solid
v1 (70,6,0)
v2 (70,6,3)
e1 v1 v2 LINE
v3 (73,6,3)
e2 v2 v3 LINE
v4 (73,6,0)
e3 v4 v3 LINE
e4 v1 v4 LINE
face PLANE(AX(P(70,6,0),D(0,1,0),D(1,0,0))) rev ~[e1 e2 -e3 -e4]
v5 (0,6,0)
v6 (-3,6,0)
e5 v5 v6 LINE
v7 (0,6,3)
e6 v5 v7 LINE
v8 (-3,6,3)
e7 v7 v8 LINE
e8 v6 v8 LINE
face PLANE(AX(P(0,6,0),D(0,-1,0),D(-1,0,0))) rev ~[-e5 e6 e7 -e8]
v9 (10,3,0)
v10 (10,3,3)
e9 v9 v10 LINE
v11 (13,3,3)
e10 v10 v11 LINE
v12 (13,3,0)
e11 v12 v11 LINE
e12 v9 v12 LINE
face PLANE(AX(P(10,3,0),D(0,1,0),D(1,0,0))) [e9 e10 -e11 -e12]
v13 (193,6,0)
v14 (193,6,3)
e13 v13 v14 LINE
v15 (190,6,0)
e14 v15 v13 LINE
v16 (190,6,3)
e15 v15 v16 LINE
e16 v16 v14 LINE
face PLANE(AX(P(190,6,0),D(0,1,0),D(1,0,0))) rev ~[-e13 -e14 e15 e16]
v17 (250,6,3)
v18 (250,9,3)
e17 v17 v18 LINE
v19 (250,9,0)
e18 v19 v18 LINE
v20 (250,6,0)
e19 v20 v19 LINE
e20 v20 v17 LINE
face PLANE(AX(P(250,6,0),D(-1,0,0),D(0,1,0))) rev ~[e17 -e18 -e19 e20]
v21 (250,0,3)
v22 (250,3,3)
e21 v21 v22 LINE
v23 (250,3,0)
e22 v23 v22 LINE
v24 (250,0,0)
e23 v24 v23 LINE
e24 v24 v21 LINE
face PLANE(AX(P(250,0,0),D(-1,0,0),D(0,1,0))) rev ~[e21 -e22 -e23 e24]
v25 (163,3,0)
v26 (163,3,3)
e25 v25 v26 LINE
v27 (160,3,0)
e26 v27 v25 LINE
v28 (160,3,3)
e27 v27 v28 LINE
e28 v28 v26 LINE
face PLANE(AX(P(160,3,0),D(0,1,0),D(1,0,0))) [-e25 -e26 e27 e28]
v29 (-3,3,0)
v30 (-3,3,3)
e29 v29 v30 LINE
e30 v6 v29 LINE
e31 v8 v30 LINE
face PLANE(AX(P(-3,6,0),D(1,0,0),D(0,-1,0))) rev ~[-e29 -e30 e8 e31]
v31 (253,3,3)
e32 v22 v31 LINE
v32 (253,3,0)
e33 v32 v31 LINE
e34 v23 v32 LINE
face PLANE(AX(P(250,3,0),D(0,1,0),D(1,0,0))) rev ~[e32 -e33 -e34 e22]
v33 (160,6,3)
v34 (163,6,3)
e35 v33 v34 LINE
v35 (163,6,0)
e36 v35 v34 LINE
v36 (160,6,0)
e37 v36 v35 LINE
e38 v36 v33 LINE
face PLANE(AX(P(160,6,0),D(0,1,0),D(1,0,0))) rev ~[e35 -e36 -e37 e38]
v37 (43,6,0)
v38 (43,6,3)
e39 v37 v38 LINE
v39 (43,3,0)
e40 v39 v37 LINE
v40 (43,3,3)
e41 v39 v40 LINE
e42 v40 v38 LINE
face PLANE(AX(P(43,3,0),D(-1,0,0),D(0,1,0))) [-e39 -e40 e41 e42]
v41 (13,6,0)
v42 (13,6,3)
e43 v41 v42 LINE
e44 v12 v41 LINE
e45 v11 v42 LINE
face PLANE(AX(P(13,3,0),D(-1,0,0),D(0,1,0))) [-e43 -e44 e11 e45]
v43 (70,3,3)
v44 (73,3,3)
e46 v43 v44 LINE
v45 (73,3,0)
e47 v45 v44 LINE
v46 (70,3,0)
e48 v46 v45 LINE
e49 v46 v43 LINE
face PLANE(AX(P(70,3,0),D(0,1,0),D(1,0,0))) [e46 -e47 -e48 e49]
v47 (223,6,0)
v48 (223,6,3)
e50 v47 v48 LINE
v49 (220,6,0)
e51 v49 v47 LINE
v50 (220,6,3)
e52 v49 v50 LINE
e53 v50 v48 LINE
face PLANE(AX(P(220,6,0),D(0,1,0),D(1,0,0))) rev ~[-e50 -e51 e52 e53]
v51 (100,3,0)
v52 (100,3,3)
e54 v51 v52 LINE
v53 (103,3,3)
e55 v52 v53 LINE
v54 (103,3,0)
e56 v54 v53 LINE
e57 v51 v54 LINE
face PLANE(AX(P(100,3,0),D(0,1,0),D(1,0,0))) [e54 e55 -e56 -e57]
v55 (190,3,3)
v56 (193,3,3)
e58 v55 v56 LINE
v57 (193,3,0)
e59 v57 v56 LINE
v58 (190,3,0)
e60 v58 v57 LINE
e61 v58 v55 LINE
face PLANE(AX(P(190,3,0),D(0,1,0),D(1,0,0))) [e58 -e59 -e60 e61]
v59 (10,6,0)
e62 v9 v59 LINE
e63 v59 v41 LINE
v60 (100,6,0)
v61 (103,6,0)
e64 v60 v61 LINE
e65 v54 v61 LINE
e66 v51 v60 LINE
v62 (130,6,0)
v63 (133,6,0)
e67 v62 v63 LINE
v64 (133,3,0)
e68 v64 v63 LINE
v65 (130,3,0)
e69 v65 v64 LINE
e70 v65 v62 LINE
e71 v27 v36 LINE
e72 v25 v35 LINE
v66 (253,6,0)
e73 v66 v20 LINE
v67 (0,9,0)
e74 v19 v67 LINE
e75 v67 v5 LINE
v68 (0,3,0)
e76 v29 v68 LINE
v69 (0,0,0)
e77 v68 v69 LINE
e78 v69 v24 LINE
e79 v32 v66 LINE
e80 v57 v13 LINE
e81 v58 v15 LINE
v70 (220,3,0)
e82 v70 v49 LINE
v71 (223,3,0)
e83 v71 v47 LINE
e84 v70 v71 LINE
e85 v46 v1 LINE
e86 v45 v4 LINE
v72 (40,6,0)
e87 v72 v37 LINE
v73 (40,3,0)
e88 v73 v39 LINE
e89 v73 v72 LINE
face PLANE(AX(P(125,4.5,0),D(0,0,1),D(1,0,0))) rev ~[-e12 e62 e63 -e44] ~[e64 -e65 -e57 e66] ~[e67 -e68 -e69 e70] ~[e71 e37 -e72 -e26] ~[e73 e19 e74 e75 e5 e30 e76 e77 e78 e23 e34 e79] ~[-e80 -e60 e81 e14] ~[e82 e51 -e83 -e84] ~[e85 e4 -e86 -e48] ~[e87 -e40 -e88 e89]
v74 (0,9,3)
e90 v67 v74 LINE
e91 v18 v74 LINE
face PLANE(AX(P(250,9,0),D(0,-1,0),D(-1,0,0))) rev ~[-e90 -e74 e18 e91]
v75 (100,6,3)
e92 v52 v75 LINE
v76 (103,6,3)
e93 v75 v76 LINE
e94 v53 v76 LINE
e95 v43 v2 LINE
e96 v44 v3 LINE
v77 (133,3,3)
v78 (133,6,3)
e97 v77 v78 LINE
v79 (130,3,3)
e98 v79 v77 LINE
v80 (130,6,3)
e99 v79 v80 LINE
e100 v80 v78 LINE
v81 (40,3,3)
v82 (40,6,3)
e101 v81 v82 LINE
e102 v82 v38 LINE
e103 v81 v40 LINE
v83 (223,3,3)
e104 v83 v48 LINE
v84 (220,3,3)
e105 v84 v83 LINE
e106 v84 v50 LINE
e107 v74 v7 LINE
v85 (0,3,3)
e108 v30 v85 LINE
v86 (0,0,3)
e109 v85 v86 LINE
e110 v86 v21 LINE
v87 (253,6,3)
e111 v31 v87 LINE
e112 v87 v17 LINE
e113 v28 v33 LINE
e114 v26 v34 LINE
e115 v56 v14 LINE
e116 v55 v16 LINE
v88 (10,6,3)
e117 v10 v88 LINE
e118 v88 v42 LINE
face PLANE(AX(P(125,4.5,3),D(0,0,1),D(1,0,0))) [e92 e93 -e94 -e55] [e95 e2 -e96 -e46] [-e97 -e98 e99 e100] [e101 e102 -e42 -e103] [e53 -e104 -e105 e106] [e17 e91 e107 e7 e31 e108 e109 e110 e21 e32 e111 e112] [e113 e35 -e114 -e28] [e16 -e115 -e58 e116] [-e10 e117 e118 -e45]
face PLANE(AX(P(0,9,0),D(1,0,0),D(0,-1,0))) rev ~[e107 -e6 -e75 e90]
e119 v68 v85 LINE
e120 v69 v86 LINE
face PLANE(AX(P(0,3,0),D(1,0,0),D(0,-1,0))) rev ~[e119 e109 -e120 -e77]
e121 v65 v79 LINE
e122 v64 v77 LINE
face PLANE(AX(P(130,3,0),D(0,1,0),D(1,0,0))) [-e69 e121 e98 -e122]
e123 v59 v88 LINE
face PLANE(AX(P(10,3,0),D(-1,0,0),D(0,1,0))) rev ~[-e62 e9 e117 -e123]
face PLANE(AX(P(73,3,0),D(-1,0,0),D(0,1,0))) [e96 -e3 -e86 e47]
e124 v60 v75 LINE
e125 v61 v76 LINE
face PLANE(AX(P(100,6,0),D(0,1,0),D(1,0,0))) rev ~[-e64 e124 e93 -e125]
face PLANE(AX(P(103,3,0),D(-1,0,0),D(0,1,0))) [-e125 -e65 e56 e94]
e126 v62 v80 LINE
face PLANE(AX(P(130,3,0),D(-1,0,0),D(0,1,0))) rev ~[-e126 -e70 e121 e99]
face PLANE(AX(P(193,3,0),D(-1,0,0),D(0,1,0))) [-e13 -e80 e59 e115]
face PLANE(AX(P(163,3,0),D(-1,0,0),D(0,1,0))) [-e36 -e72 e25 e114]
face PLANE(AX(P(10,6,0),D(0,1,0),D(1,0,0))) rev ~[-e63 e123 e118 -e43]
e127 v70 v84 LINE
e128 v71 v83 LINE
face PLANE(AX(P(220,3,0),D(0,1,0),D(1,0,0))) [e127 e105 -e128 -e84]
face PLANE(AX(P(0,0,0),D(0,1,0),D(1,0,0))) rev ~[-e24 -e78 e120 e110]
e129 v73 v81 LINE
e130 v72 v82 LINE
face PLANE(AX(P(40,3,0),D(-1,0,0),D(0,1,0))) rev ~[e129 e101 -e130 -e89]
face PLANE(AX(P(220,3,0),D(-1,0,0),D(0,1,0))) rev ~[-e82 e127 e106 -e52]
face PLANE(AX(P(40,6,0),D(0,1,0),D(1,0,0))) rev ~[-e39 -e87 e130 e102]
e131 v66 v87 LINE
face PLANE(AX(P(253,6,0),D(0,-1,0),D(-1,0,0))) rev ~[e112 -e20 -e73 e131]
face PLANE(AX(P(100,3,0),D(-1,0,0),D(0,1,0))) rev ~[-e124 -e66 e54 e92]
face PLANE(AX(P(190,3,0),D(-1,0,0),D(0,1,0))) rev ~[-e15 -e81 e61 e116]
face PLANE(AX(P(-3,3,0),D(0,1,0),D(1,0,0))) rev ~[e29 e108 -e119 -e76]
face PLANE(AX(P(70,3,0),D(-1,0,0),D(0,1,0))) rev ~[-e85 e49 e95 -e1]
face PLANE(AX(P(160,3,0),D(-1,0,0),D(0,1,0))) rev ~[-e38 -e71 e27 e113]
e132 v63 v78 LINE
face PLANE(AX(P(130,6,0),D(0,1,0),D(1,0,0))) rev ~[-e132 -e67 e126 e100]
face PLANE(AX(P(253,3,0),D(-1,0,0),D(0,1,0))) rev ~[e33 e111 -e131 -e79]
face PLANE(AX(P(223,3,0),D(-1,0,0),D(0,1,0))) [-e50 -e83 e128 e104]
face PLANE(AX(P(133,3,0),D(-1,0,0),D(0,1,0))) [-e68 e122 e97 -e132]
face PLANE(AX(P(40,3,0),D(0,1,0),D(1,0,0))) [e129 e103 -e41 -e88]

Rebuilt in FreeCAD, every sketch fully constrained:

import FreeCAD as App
import Part
import Sketcher
from FreeCAD import Vector
Q = App.Units.Quantity


def add_polygon(sketch, points):
    """Adds a closed chain of lines whose ends are joined by coincident constraints."""
    first, n = sketch.GeometryCount, len(points)
    for a, b in zip(points, points[1:] + points[:1]):
        sketch.addGeometry(Part.LineSegment(App.Vector(*a, 0), App.Vector(*b, 0)), False)
    for i in range(n):
        sketch.addConstraint(Sketcher.Constraint("Coincident", first + i, 2, first + (i + 1) % n, 1))

doc = App.newDocument("Part")
params = doc.addObject("Spreadsheet::Sheet", "Params")
for row, (alias, value) in enumerate([
    ("sketch1_width", "250 mm"),
    ("sketch1_width2", "3 mm"),
    ("pad1_length", "3 mm"),
], start=1):
    params.set(f"A{row}", alias)
    params.set(f"B{row}", "=" + value)
    params.setAlias(f"B{row}", alias)

body = doc.addObject("PartDesign::Body", "Body")

# Sketch on XY plane
sketch1 = body.newObject("Sketcher::SketchObject", "Sketch")
sketch1.AttachmentSupport = (doc.getObject("XY_Plane"), [""])
sketch1.MapMode = "FlatFace"
add_polygon(sketch1, [(0, 0), (250, 0), (250, 3), (253, 3), (253, 6), (250, 6), (250, 9), (0, 9), (0, 6), (-3, 6), (-3, 3), (0, 3)])  # lines 0-11
add_polygon(sketch1, [(13, 3), (10, 3), (10, 6), (13, 6)])  # lines 12-15
add_polygon(sketch1, [(43, 3), (40, 3), (40, 6), (43, 6)])  # lines 16-19
add_polygon(sketch1, [(73, 3), (70, 3), (70, 6), (73, 6)])  # lines 20-23
add_polygon(sketch1, [(103, 3), (100, 3), (100, 6), (103, 6)])  # lines 24-27
add_polygon(sketch1, [(133, 3), (130, 3), (130, 6), (133, 6)])  # lines 28-31
add_polygon(sketch1, [(163, 3), (160, 3), (160, 6), (163, 6)])  # lines 32-35
add_polygon(sketch1, [(193, 3), (190, 3), (190, 6), (193, 6)])  # lines 36-39
add_polygon(sketch1, [(223, 3), (220, 3), (220, 6), (223, 6)])  # lines 40-43
sketch1.addConstraint([
    Sketcher.Constraint("Horizontal", 0),
    Sketcher.Constraint("Vertical", 1),
    Sketcher.Constraint("Horizontal", 2),
    Sketcher.Constraint("Vertical", 3),
    Sketcher.Constraint("Horizontal", 4),
    Sketcher.Constraint("Vertical", 5),
    Sketcher.Constraint("Horizontal", 6),
    Sketcher.Constraint("Vertical", 7),
    Sketcher.Constraint("Horizontal", 8),
    Sketcher.Constraint("Vertical", 9),
    Sketcher.Constraint("Horizontal", 10),
    Sketcher.Constraint("Vertical", 11),
    Sketcher.Constraint("Horizontal", 12),
    Sketcher.Constraint("Vertical", 13),
    Sketcher.Constraint("Horizontal", 14),
    Sketcher.Constraint("Vertical", 15),
    Sketcher.Constraint("Horizontal", 16),
    Sketcher.Constraint("Vertical", 17),
    Sketcher.Constraint("Horizontal", 18),
    Sketcher.Constraint("Vertical", 19),
    Sketcher.Constraint("Horizontal", 20),
    Sketcher.Constraint("Vertical", 21),
    Sketcher.Constraint("Horizontal", 22),
    Sketcher.Constraint("Vertical", 23),
    Sketcher.Constraint("Horizontal", 24),
    Sketcher.Constraint("Vertical", 25),
    Sketcher.Constraint("Horizontal", 26),
    Sketcher.Constraint("Vertical", 27),
    Sketcher.Constraint("Horizontal", 28),
    Sketcher.Constraint("Vertical", 29),
    Sketcher.Constraint("Horizontal", 30),
    Sketcher.Constraint("Vertical", 31),
    Sketcher.Constraint("Horizontal", 32),
    Sketcher.Constraint("Vertical", 33),
    Sketcher.Constraint("Horizontal", 34),
    Sketcher.Constraint("Vertical", 35),
    Sketcher.Constraint("Horizontal", 36),
    Sketcher.Constraint("Vertical", 37),
    Sketcher.Constraint("Horizontal", 38),
    Sketcher.Constraint("Vertical", 39),
    Sketcher.Constraint("Horizontal", 40),
    Sketcher.Constraint("Vertical", 41),
    Sketcher.Constraint("Horizontal", 42),
    Sketcher.Constraint("Vertical", 43),
    Sketcher.Constraint("Coincident", 11, 2, -1, 1),
    Sketcher.Constraint("PointOnObject", 6, 2, -2),
    Sketcher.Constraint("Horizontal", 4, 2, 7, 2),
    Sketcher.Constraint("Horizontal", 2, 2, 9, 2),
    Sketcher.Constraint("Horizontal", 10, 2, 12, 2),
    Sketcher.Constraint("Horizontal", 8, 2, 13, 2),
    Sketcher.Constraint("Horizontal", 15, 2, 16, 2),
    Sketcher.Constraint("Horizontal", 14, 2, 17, 2),
    Sketcher.Constraint("Horizontal", 19, 2, 20, 2),
    Sketcher.Constraint("Horizontal", 18, 2, 21, 2),
    Sketcher.Constraint("Horizontal", 23, 2, 24, 2),
    Sketcher.Constraint("Horizontal", 22, 2, 25, 2),
    Sketcher.Constraint("Horizontal", 27, 2, 28, 2),
    Sketcher.Constraint("Horizontal", 26, 2, 29, 2),
    Sketcher.Constraint("Horizontal", 31, 2, 32, 2),
    Sketcher.Constraint("Horizontal", 30, 2, 33, 2),
    Sketcher.Constraint("Horizontal", 35, 2, 36, 2),
    Sketcher.Constraint("Horizontal", 34, 2, 37, 2),
    Sketcher.Constraint("Horizontal", 39, 2, 40, 2),
    Sketcher.Constraint("Horizontal", 38, 2, 41, 2),
    Sketcher.Constraint("Vertical", 1, 2, 4, 2),
    Sketcher.Constraint("Equal", 4, 8),
    Sketcher.Constraint("Equal", 10, 12),
    Sketcher.Constraint("Equal", 14, 16),
    Sketcher.Constraint("Equal", 18, 20),
    Sketcher.Constraint("Equal", 22, 24),
    Sketcher.Constraint("Equal", 26, 28),
    Sketcher.Constraint("Equal", 30, 32),
    Sketcher.Constraint("Equal", 34, 36),
    Sketcher.Constraint("Equal", 38, 40),
    Sketcher.Constraint("Equal", 42, 1),
    Sketcher.Constraint("Equal", 1, 3),
    Sketcher.Constraint("Equal", 3, 5),
    Sketcher.Constraint("DistanceX", 0, 1, 0, 2, Q("250 mm")),
    Sketcher.Constraint("DistanceX", 2, 1, 2, 2, Q("3 mm")),
    Sketcher.Constraint("DistanceX", -1, 1, 12, 2, Q("10 mm")),
    Sketcher.Constraint("DistanceX", -1, 1, 16, 2, Q("40 mm")),
    Sketcher.Constraint("DistanceX", -1, 1, 20, 2, Q("70 mm")),
    Sketcher.Constraint("DistanceX", -1, 1, 24, 2, Q("100 mm")),
    Sketcher.Constraint("DistanceX", -1, 1, 28, 2, Q("130 mm")),
    Sketcher.Constraint("DistanceX", -1, 1, 32, 2, Q("160 mm")),
    Sketcher.Constraint("DistanceX", -1, 1, 36, 2, Q("190 mm")),
    Sketcher.Constraint("DistanceX", -1, 1, 40, 2, Q("220 mm")),
])
sketch1.setExpression("Constraints[121]", "Params.sketch1_width")
sketch1.setExpression("Constraints[122]", "Params.sketch1_width2")
pad1 = body.newObject("PartDesign::Pad", "Pad")
pad1.Profile = sketch1
pad1.setExpression("Length", "Params.pad1_length")

doc.recompute()
